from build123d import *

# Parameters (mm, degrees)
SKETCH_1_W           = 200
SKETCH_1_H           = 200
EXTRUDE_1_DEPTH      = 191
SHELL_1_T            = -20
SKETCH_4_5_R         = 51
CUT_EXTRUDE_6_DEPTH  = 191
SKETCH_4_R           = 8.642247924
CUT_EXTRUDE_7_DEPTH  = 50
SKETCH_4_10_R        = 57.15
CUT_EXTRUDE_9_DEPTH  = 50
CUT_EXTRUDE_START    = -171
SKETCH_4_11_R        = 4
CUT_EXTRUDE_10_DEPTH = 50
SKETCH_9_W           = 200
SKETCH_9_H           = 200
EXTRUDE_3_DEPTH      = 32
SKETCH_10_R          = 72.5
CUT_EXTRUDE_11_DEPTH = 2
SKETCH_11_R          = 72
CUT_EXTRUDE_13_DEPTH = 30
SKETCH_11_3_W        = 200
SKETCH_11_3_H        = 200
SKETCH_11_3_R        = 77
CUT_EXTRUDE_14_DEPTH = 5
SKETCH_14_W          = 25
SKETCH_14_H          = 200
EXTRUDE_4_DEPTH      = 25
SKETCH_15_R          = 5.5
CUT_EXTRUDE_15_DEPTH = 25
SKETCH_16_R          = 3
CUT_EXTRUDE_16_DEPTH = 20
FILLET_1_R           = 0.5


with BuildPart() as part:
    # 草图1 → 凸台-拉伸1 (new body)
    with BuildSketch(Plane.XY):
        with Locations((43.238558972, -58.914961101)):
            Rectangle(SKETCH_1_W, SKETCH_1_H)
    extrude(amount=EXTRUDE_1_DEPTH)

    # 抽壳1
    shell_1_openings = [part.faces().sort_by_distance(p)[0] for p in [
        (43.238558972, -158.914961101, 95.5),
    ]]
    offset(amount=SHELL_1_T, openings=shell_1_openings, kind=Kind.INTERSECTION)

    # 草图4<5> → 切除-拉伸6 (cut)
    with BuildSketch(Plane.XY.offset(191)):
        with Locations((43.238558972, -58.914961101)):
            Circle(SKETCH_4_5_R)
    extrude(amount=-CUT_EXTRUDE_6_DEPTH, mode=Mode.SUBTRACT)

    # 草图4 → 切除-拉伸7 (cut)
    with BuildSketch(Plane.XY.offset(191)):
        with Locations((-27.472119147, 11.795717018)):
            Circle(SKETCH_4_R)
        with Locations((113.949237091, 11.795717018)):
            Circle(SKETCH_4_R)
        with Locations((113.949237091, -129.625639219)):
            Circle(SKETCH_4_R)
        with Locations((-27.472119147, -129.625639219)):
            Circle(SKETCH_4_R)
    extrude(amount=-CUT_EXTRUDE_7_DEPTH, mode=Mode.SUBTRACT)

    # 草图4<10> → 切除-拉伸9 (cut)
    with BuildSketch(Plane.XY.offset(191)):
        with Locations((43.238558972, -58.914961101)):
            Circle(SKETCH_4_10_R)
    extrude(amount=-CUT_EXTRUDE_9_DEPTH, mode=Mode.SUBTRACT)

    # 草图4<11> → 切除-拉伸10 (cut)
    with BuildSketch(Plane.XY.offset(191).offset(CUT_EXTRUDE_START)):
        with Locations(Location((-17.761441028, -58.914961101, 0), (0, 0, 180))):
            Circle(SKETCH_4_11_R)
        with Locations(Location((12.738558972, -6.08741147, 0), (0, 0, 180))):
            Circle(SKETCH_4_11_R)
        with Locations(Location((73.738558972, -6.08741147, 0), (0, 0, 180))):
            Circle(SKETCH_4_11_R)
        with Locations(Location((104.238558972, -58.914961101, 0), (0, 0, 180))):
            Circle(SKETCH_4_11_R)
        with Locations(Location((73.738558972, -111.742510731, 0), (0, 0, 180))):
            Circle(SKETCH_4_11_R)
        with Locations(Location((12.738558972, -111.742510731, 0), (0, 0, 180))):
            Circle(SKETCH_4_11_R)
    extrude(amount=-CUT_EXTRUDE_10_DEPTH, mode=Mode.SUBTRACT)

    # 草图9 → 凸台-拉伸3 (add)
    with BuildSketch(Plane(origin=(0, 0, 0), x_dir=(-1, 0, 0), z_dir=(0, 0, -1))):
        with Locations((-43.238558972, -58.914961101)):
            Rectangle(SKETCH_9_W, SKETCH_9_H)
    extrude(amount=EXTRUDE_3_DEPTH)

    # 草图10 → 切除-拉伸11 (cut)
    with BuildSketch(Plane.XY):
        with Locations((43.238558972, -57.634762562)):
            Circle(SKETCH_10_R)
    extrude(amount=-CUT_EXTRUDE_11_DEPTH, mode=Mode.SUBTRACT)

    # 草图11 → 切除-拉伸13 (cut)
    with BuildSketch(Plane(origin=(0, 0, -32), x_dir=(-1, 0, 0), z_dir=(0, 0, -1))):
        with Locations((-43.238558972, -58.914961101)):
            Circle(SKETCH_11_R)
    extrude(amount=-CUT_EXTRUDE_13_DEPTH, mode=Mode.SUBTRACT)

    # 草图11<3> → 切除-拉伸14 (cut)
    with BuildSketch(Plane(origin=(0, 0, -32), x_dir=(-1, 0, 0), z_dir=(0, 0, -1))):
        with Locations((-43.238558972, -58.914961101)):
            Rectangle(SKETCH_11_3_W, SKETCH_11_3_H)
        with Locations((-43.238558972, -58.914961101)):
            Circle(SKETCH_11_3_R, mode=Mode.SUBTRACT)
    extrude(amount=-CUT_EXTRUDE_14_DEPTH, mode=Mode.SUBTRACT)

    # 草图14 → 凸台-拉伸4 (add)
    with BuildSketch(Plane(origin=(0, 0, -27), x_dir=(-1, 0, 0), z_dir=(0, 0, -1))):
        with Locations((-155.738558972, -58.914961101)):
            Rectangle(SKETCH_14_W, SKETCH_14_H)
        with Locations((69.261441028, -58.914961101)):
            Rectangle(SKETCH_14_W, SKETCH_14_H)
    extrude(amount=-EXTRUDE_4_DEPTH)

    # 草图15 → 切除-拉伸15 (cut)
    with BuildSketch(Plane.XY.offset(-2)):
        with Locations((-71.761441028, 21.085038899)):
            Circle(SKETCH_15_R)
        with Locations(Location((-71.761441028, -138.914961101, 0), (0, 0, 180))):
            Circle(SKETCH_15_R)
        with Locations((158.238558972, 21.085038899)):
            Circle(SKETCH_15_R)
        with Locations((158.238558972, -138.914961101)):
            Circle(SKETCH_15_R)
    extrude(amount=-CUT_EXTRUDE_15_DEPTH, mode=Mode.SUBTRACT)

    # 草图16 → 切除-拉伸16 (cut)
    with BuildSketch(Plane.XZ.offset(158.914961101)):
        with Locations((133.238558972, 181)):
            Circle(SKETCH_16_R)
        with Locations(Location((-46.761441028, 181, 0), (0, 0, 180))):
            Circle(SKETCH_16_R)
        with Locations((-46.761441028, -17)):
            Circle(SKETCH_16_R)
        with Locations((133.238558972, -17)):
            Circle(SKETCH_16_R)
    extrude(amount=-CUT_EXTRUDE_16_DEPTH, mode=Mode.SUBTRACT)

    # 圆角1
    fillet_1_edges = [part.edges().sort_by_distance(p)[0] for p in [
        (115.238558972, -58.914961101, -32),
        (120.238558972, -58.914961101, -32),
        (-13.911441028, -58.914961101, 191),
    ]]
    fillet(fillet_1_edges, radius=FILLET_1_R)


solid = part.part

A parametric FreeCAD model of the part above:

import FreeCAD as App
import Part
import Sketcher

V = App.Vector


def edges_at(feature, points):
    """Names of the edges that pass closest to the given points."""
    edges = feature.Shape.Edges
    near = lambda p: min(range(len(edges)), key=lambda i: edges[i].distToShape(Part.Vertex(*p))[0])
    return sorted({f"Edge{near(p) + 1}" for p in points})


def faces_at(feature, points):
    """Names of the faces that lie closest to the given points."""
    faces = feature.Shape.Faces
    near = lambda p: min(range(len(faces)), key=lambda i: faces[i].distToShape(Part.Vertex(*p))[0])
    return sorted({f"Face{near(p) + 1}" for p in points})


def add_polygon(sketch, points):
    """Adds a closed chain of lines whose ends are joined by coincident constraints."""
    first, n = sketch.GeometryCount, len(points)
    for a, b in zip(points, points[1:] + points[:1]):
        sketch.addGeometry(Part.LineSegment(App.Vector(*a, 0), App.Vector(*b, 0)), False)
    for i in range(n):
        sketch.addConstraint(Sketcher.Constraint("Coincident", first + i, 2, first + (i + 1) % n, 1))

doc = App.newDocument("Part")
params = doc.addObject("Spreadsheet::Sheet", "Params")
for row, (alias, value) in enumerate([
    ("sketch1_width", "200 mm"),
    ("pad1_length", "191 mm"),
    ("thickness_wall", "20 mm"),
    ("sketch2_diameter", "102 mm"),
    ("pocket1_length", "191 mm"),
    ("pocket2_length", "50 mm"),
    ("sketch4_diameter", "114.3 mm"),
    ("pocket3_length", "50 mm"),
    ("sketch5_diameter", "8 mm"),
    ("pocket4_length", "50 mm"),
    ("sketch6_width", "200 mm"),
    ("pad2_length", "32 mm"),
    ("sketch7_diameter", "145 mm"),
    ("pocket5_length", "2 mm"),
    ("sketch8_diameter", "144 mm"),
    ("pocket6_length", "30 mm"),
    ("sketch9_diameter", "154 mm"),
    ("sketch9_width", "200 mm"),
    ("pocket7_length", "5 mm"),
    ("sketch10_width", "25 mm"),
    ("sketch10_height", "200 mm"),
    ("pad3_length", "25 mm"),
    ("sketch11_diameter", "11 mm"),
    ("pocket8_length", "25 mm"),
    ("sketch12_diameter", "6 mm"),
    ("pocket9_length", "20 mm"),
    ("fillet_radius", "0.5 mm"),
], start=1):
    params.set(f"A{row}", alias)
    params.set(f"B{row}", "=" + value)
    params.setAlias(f"B{row}", alias)

body = doc.addObject("PartDesign::Body", "Body")

sketch1 = body.newObject("Sketcher::SketchObject", "Sketch")
sketch1.AttachmentSupport = (doc.getObject("XY_Plane"), [""])
sketch1.MapMode = "FlatFace"
add_polygon(sketch1, [(-57, 41), (-57, -159), (143, -159), (143, 41)])
sketch1.addConstraint([
    Sketcher.Constraint("Vertical", 0),
    Sketcher.Constraint("Horizontal", 1),
    Sketcher.Constraint("Vertical", 2),
    Sketcher.Constraint("Horizontal", 3),
    Sketcher.Constraint("Equal", 3, 0),
    Sketcher.Constraint("DistanceX", 1, 1, 1, 2, 200.0),
    Sketcher.Constraint("DistanceX", 0, 2, -1, 1, 56.761441),
    Sketcher.Constraint("DistanceY", 0, 2, -1, 1, 158.914961),
])
sketch1.setExpression("Constraints[9]", "Params.sketch1_width")
pad1 = body.newObject("PartDesign::Pad", "Pad")
pad1.Profile = sketch1
pad1.setExpression("Length", "Params.pad1_length")
doc.recompute()

thickness = body.newObject("PartDesign::Thickness", "Thickness")
thickness.Base = (pad1, faces_at(pad1, [(43.239, -158.915, 95.5)]))
thickness.setExpression("Value", "Params.thickness_wall")
thickness.Reversed = True
thickness.Join = "Intersection"

sketch2 = body.newObject("Sketcher::SketchObject", "Sketch001")
sketch2.AttachmentSupport = (doc.getObject("XY_Plane"), [""])
sketch2.MapMode = "FlatFace"
sketch2.AttachmentOffset = App.Placement(V(0, 0, 191), App.Rotation())
sketch2.addGeometry(Part.Circle(V(43, -59, 0), V(0, 0, 1), 51), False)
sketch2.addConstraint([
    Sketcher.Constraint("Diameter", 0, 102.0),
    Sketcher.Constraint("DistanceX", -1, 1, 0, 3, 43.238559),
    Sketcher.Constraint("DistanceY", 0, 3, -1, 1, 58.914961),
])
sketch2.setExpression("Constraints[0]", "Params.sketch2_diameter")
pocket1 = body.newObject("PartDesign::Pocket", "Pocket")
pocket1.Profile = sketch2
pocket1.setExpression("Length", "Params.pocket1_length")

sketch3 = body.newObject("Sketcher::SketchObject", "Sketch002")
sketch3.AttachmentSupport = (doc.getObject("XY_Plane"), [""])
sketch3.MapMode = "FlatFace"
sketch3.AttachmentOffset = App.Placement(V(0, 0, 191), App.Rotation())
sketch3.addGeometry([
    Part.Circle(V(-27, 12, 0), V(0, 0, 1), 9),
    Part.Circle(V(114, 12, 0), V(0, 0, 1), 9),
    Part.Circle(V(114, -130, 0), V(0, 0, 1), 9),
    Part.Circle(V(-27, -130, 0), V(0, 0, 1), 9),
], False)
sketch3.addConstraint([
    Sketcher.Constraint("Equal", 0, 1),
    Sketcher.Constraint("Equal", 1, 2),
    Sketcher.Constraint("Equal", 2, 3),
    Sketcher.Constraint("Horizontal", 0, 3, 1, 3),
    Sketcher.Constraint("Horizontal", 2, 3, 3, 3),
    Sketcher.Constraint("Vertical", 1, 3, 2, 3),
    Sketcher.Constraint("Vertical", 0, 3, 3, 3),
    Sketcher.Constraint("Diameter", 0, 17.284496),
    Sketcher.Constraint("DistanceX", 0, 3, -1, 1, 27.472119),
    Sketcher.Constraint("DistanceY", 2, 3, -1, 1, 129.625639),
    Sketcher.Constraint("DistanceY", -1, 1, 0, 3, 11.795717),
    Sketcher.Constraint("DistanceX", -1, 1, 1, 3, 113.949237),
])
pocket2 = body.newObject("PartDesign::Pocket", "Pocket001")
pocket2.Profile = sketch3
pocket2.setExpression("Length", "Params.pocket2_length")

sketch4 = body.newObject("Sketcher::SketchObject", "Sketch003")
sketch4.AttachmentSupport = (doc.getObject("XY_Plane"), [""])
sketch4.MapMode = "FlatFace"
sketch4.AttachmentOffset = App.Placement(V(0, 0, 191), App.Rotation())
sketch4.addGeometry(Part.Circle(V(43, -59, 0), V(0, 0, 1), 57), False)
sketch4.addConstraint([
    Sketcher.Constraint("Diameter", 0, 114.3),
    Sketcher.Constraint("DistanceX", -1, 1, 0, 3, 43.238559),
    Sketcher.Constraint("DistanceY", 0, 3, -1, 1, 58.914961),
])
sketch4.setExpression("Constraints[0]", "Params.sketch4_diameter")
pocket3 = body.newObject("PartDesign::Pocket", "Pocket002")
pocket3.Profile = sketch4
pocket3.setExpression("Length", "Params.pocket3_length")

sketch5 = body.newObject("Sketcher::SketchObject", "Sketch004")
sketch5.AttachmentSupport = (doc.getObject("XY_Plane"), [""])
sketch5.MapMode = "FlatFace"
sketch5.AttachmentOffset = App.Placement(V(0, 0, 20), App.Rotation())
sketch5.addGeometry([
    Part.Circle(V(-17.8, -58.9, 0), V(0, 0, 1), 4),
    Part.Circle(V(12.7, -6.1, 0), V(0, 0, 1), 4),
    Part.Circle(V(73.7, -6.1, 0), V(0, 0, 1), 4),
    Part.Circle(V(104.2, -58.9, 0), V(0, 0, 1), 4),
    Part.Circle(V(73.7, -111.7, 0), V(0, 0, 1), 4),
    Part.Circle(V(12.7, -111.7, 0), V(0, 0, 1), 4),
], False)
sketch5.addConstraint([
    Sketcher.Constraint("Equal", 0, 1),
    Sketcher.Constraint("Equal", 1, 2),
    Sketcher.Constraint("Equal", 2, 3),
    Sketcher.Constraint("Equal", 3, 4),
    Sketcher.Constraint("Equal", 4, 5),
    Sketcher.Constraint("Horizontal", 1, 3, 2, 3),
    Sketcher.Constraint("Horizontal", 0, 3, 3, 3),
    Sketcher.Constraint("Horizontal", 4, 3, 5, 3),
    Sketcher.Constraint("Vertical", 2, 3, 4, 3),
    Sketcher.Constraint("Vertical", 1, 3, 5, 3),
    Sketcher.Constraint("Diameter", 0, 8.0),
    Sketcher.Constraint("DistanceX", 1, 3, 2, 3, 61.0),
    Sketcher.Constraint("DistanceX", 0, 3, 3, 3, 122.0),
    Sketcher.Constraint("DistanceX", 0, 3, 1, 3, 30.5),
    Sketcher.Constraint("DistanceY", 4, 3, 2, 3, 105.655099),
    Sketcher.Constraint("DistanceX", 0, 3, -1, 1, 17.761441),
    Sketcher.Constraint("DistanceY", 0, 3, -1, 1, 58.914961),
    Sketcher.Constraint("DistanceY", 1, 3, -1, 1, 6.087411),
])
sketch5.setExpression("Constraints[10]", "Params.sketch5_diameter")
pocket4 = body.newObject("PartDesign::Pocket", "Pocket003")
pocket4.Profile = sketch5
pocket4.setExpression("Length", "Params.pocket4_length")

sketch6 = body.newObject("Sketcher::SketchObject", "Sketch005")
sketch6.AttachmentSupport = (doc.getObject("XY_Plane"), [""])
sketch6.MapMode = "FlatFace"
add_polygon(sketch6, [(143, 41), (143, -159), (-57, -159), (-57, 41)])
sketch6.addConstraint([
    Sketcher.Constraint("Vertical", 0),
    Sketcher.Constraint("Horizontal", 1),
    Sketcher.Constraint("Vertical", 2),
    Sketcher.Constraint("Horizontal", 3),
    Sketcher.Constraint("Equal", 3, 0),
    Sketcher.Constraint("DistanceX", 1, 2, 1, 1, 200.0),
    Sketcher.Constraint("DistanceX", -1, 1, 0, 2, 143.238559),
    Sketcher.Constraint("DistanceY", 0, 2, -1, 1, 158.914961),
])
sketch6.setExpression("Constraints[9]", "Params.sketch6_width")
pad2 = body.newObject("PartDesign::Pad", "Pad001")
pad2.Profile = sketch6
pad2.setExpression("Length", "Params.pad2_length")
pad2.Reversed = True

sketch7 = body.newObject("Sketcher::SketchObject", "Sketch006")
sketch7.AttachmentSupport = (doc.getObject("XY_Plane"), [""])
sketch7.MapMode = "FlatFace"
sketch7.addGeometry(Part.Circle(V(43, -58, 0), V(0, 0, 1), 72), False)
sketch7.addConstraint([
    Sketcher.Constraint("Diameter", 0, 145.0),
    Sketcher.Constraint("DistanceX", -1, 1, 0, 3, 43.238559),
    Sketcher.Constraint("DistanceY", 0, 3, -1, 1, 57.634763),
])
sketch7.setExpression("Constraints[0]", "Params.sketch7_diameter")
pocket5 = body.newObject("PartDesign::Pocket", "Pocket004")
pocket5.Profile = sketch7
pocket5.setExpression("Length", "Params.pocket5_length")

sketch8 = body.newObject("Sketcher::SketchObject", "Sketch007")
sketch8.AttachmentSupport = (doc.getObject("XY_Plane"), [""])
sketch8.MapMode = "FlatFace"
sketch8.AttachmentOffset = App.Placement(V(0, 0, -32), App.Rotation())
sketch8.addGeometry(Part.Circle(V(43, -59, 0), V(0, 0, 1), 72), False)
sketch8.addConstraint([
    Sketcher.Constraint("Diameter", 0, 144.0),
    Sketcher.Constraint("DistanceX", -1, 1, 0, 3, 43.238559),
    Sketcher.Constraint("DistanceY", 0, 3, -1, 1, 58.914961),
])
sketch8.setExpression("Constraints[0]", "Params.sketch8_diameter")
pocket6 = body.newObject("PartDesign::Pocket", "Pocket005")
pocket6.Profile = sketch8
pocket6.setExpression("Length", "Params.pocket6_length")
pocket6.Reversed = True

sketch9 = body.newObject("Sketcher::SketchObject", "Sketch008")
sketch9.AttachmentSupport = (doc.getObject("XY_Plane"), [""])
sketch9.MapMode = "FlatFace"
sketch9.AttachmentOffset = App.Placement(V(0, 0, -32), App.Rotation())
add_polygon(sketch9, [(143, 41), (143, -159), (-57, -159), (-57, 41)])
sketch9.addGeometry(Part.Circle(V(43, -59, 0), V(0, 0, 1), 77), False)
sketch9.addConstraint([
    Sketcher.Constraint("Vertical", 0),
    Sketcher.Constraint("Horizontal", 1),
    Sketcher.Constraint("Vertical", 2),
    Sketcher.Constraint("Horizontal", 3),
    Sketcher.Constraint("Equal", 3, 0),
    Sketcher.Constraint("Diameter", 4, 154.0),
    Sketcher.Constraint("DistanceX", 1, 2, 1, 1, 200.0),
    Sketcher.Constraint("DistanceX", 4, 3, 0, 2, 100.0),
    Sketcher.Constraint("DistanceY", 0, 2, 4, 3, 100.0),
    Sketcher.Constraint("DistanceX", -1, 1, 4, 3, 43.238559),
    Sketcher.Constraint("DistanceY", 4, 3, -1, 1, 58.914961),
])
sketch9.setExpression("Constraints[9]", "Params.sketch9_diameter")
sketch9.setExpression("Constraints[10]", "Params.sketch9_width")
pocket7 = body.newObject("PartDesign::Pocket", "Pocket006")
pocket7.Profile = sketch9
pocket7.setExpression("Length", "Params.pocket7_length")
pocket7.Reversed = True

sketch10 = body.newObject("Sketcher::SketchObject", "Sketch009")
sketch10.AttachmentSupport = (doc.getObject("XY_Plane"), [""])
sketch10.MapMode = "FlatFace"
sketch10.AttachmentOffset = App.Placement(V(0, 0, -27), App.Rotation())
add_polygon(sketch10, [(168, 41), (168, -159), (143, -159), (143, 41)])
add_polygon(sketch10, [(-57, 41), (-57, -159), (-82, -159), (-82, 41)])
sketch10.addConstraint([
    Sketcher.Constraint("Vertical", 0),
    Sketcher.Constraint("Horizontal", 1),
    Sketcher.Constraint("Vertical", 2),
    Sketcher.Constraint("Horizontal", 3),
    Sketcher.Constraint("Vertical", 4),
    Sketcher.Constraint("Horizontal", 5),
    Sketcher.Constraint("Vertical", 6),
    Sketcher.Constraint("Horizontal", 7),
    Sketcher.Constraint("Horizontal", 1, 2, 4, 2),
    Sketcher.Constraint("Horizontal", 3, 2, 6, 2),
    Sketcher.Constraint("Equal", 3, 5),
    Sketcher.Constraint("DistanceX", 1, 2, 1, 1, 25.0),
    Sketcher.Constraint("DistanceY", 0, 2, 0, 1, 200.0),
    Sketcher.Constraint("DistanceX", 4, 2, 1, 2, 200.0),
    Sketcher.Constraint("DistanceX", -1, 1, 0, 2, 168.238559),
    Sketcher.Constraint("DistanceY", 0, 2, -1, 1, 158.914961),
])
sketch10.setExpression("Constraints[19]", "Params.sketch10_width")
sketch10.setExpression("Constraints[20]", "Params.sketch10_height")
pad3 = body.newObject("PartDesign::Pad", "Pad002")
pad3.Profile = sketch10
pad3.setExpression("Length", "Params.pad3_length")

sketch11 = body.newObject("Sketcher::SketchObject", "Sketch010")
sketch11.AttachmentSupport = (doc.getObject("XY_Plane"), [""])
sketch11.MapMode = "FlatFace"
sketch11.AttachmentOffset = App.Placement(V(0, 0, -2), App.Rotation())
sketch11.addGeometry([
    Part.Circle(V(-72, 21, 0), V(0, 0, 1), 6),
    Part.Circle(V(-72, -139, 0), V(0, 0, 1), 6),
    Part.Circle(V(158, 21, 0), V(0, 0, 1), 6),
    Part.Circle(V(158, -139, 0), V(0, 0, 1), 6),
], False)
sketch11.addConstraint([
    Sketcher.Constraint("Equal", 0, 1),
    Sketcher.Constraint("Equal", 1, 2),
    Sketcher.Constraint("Equal", 2, 3),
    Sketcher.Constraint("Horizontal", 0, 3, 2, 3),
    Sketcher.Constraint("Horizontal", 1, 3, 3, 3),
    Sketcher.Constraint("Vertical", 0, 3, 1, 3),
    Sketcher.Constraint("Vertical", 2, 3, 3, 3),
    Sketcher.Constraint("Diameter", 0, 11.0),
    Sketcher.Constraint("DistanceY", 1, 3, 0, 3, 160.0),
    Sketcher.Constraint("DistanceX", 0, 3, 2, 3, 230.0),
    Sketcher.Constraint("DistanceX", 0, 3, -1, 1, 71.761441),
    Sketcher.Constraint("DistanceY", -1, 1, 0, 3, 21.085039),
])
sketch11.setExpression("Constraints[7]", "Params.sketch11_diameter")
pocket8 = body.newObject("PartDesign::Pocket", "Pocket007")
pocket8.Profile = sketch11
pocket8.setExpression("Length", "Params.pocket8_length")

sketch12 = body.newObject("Sketcher::SketchObject", "Sketch011")
sketch12.AttachmentSupport = (doc.getObject("XZ_Plane"), [""])
sketch12.MapMode = "FlatFace"
sketch12.AttachmentOffset = App.Placement(V(0, 0, 158.914961), App.Rotation())
sketch12.addGeometry([
    Part.Circle(V(133.2, 181, 0), V(0, 0, 1), 3),
    Part.Circle(V(-46.8, 181, 0), V(0, 0, 1), 3),
    Part.Circle(V(-46.8, -17, 0), V(0, 0, 1), 3),
    Part.Circle(V(133.2, -17, 0), V(0, 0, 1), 3),
], False)
sketch12.addConstraint([
    Sketcher.Constraint("Equal", 0, 1),
    Sketcher.Constraint("Equal", 1, 2),
    Sketcher.Constraint("Equal", 2, 3),
    Sketcher.Constraint("Horizontal", 0, 3, 1, 3),
    Sketcher.Constraint("Horizontal", 2, 3, 3, 3),
    Sketcher.Constraint("Vertical", 1, 3, 2, 3),
    Sketcher.Constraint("Vertical", 0, 3, 3, 3),
    Sketcher.Constraint("Diameter", 0, 6.0),
    Sketcher.Constraint("DistanceY", -1, 1, 0, 3, 181.0),
    Sketcher.Constraint("DistanceY", 2, 3, -1, 1, 17.0),
    Sketcher.Constraint("DistanceX", 1, 3, 0, 3, 180.0),
    Sketcher.Constraint("DistanceX", -1, 1, 0, 3, 133.238559),
])
sketch12.setExpression("Constraints[7]", "Params.sketch12_diameter")
pocket9 = body.newObject("PartDesign::Pocket", "Pocket008")
pocket9.Profile = sketch12
pocket9.setExpression("Length", "Params.pocket9_length")
doc.recompute()

fillet = body.newObject("PartDesign::Fillet", "Fillet")
fillet.Base = (pocket9, edges_at(pocket9, [(115.239, -58.915, -32), (120.239, -58.915, -32), (-13.911, -58.915, 191)]))
fillet.setExpression("Radius", "Params.fillet_radius")

doc.recompute()
